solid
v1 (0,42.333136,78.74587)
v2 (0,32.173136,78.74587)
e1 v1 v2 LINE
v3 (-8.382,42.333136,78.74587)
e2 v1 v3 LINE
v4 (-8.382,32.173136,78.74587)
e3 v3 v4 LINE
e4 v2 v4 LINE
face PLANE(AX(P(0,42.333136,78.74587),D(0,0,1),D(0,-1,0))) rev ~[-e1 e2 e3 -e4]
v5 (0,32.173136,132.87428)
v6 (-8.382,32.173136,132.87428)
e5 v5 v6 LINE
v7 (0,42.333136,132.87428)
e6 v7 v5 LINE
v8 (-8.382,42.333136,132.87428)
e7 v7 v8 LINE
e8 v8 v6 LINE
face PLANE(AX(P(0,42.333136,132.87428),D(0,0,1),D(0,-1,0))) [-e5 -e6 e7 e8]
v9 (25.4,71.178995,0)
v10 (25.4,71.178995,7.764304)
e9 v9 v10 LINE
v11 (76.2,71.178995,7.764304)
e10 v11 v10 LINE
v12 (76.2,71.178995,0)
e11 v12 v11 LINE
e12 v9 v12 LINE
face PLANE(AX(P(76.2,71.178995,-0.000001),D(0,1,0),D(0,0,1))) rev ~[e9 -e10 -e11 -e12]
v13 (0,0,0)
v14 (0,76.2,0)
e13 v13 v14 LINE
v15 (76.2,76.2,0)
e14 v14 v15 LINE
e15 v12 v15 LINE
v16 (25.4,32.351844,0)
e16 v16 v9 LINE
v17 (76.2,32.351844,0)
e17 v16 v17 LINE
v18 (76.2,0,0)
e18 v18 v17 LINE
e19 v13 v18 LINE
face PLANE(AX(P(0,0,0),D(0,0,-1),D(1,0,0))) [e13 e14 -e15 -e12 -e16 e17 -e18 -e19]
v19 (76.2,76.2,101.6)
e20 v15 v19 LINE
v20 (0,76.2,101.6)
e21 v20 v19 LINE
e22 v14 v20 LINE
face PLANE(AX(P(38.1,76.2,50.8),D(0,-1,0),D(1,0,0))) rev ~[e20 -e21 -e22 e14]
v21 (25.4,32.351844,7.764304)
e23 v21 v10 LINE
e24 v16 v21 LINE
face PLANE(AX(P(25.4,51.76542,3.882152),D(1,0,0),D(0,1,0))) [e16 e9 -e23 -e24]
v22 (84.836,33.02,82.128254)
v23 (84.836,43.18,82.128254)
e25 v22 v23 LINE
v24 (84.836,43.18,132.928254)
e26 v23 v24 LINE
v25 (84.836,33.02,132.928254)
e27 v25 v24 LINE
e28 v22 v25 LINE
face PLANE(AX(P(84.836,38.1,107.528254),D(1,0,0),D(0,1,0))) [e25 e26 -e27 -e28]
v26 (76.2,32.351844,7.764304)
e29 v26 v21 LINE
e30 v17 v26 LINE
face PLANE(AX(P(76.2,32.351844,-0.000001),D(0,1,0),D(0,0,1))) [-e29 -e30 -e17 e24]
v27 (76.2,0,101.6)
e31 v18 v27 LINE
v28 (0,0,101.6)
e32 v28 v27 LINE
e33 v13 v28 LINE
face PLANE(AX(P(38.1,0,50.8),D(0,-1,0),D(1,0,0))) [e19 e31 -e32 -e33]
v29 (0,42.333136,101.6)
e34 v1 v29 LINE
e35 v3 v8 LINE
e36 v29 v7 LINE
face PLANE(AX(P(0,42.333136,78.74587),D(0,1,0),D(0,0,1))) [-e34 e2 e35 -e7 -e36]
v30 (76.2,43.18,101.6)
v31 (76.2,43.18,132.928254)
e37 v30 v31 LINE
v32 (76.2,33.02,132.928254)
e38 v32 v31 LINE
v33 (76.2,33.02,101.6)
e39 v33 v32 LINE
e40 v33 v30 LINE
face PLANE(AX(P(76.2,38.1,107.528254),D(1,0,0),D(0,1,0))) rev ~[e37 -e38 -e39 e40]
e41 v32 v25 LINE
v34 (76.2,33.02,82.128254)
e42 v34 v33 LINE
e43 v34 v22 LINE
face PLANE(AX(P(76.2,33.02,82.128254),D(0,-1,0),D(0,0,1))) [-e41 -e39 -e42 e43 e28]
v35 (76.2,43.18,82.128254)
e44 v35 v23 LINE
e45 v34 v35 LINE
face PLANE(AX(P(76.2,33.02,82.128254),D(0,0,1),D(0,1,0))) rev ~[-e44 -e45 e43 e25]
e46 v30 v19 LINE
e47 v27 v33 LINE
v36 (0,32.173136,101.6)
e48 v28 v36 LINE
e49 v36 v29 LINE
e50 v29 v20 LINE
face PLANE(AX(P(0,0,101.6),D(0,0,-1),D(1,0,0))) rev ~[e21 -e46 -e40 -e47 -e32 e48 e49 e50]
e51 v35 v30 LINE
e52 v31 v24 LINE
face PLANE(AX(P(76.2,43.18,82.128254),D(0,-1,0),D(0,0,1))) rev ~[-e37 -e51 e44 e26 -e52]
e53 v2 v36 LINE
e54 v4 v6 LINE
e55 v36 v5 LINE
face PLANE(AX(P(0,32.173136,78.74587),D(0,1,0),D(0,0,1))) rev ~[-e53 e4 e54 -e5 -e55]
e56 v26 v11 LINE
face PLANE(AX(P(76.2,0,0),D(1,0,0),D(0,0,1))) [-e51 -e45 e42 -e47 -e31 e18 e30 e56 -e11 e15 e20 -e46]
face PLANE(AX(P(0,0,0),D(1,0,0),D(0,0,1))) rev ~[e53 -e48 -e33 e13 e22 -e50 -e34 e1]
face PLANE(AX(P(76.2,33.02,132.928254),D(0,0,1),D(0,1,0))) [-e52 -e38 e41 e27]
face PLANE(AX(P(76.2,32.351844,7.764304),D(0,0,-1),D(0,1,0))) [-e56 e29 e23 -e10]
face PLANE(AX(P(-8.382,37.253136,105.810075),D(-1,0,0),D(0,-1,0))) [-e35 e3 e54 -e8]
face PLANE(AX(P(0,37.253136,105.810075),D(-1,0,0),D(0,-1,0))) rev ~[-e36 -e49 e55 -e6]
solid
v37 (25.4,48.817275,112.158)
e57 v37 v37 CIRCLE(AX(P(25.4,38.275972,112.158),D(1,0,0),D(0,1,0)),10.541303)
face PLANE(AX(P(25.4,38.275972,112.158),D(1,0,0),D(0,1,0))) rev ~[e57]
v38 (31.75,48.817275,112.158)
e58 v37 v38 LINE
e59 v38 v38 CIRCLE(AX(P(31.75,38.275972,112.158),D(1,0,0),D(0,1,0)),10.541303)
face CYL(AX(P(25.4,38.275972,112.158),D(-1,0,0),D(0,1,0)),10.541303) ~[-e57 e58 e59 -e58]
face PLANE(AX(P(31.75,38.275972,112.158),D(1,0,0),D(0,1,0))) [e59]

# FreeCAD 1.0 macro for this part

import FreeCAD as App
import Part
import Sketcher

V = App.Vector
Q = App.Units.Quantity

doc = App.newDocument("Part")
body = doc.addObject("PartDesign::Body", "Body")

sketch1 = doc.addObject("Sketcher::SketchObject", "Sketch")
body.addObject(sketch1)
sketch1.AttachmentSupport = (doc.XZ_Plane, [""])
sketch1.MapMode = "FlatFace"
sketch1.addGeometry(Part.LineSegment(V(0, 101.6, 0), V(0, 0, 0)), False)
sketch1.addGeometry(Part.LineSegment(V(0, 0, 0), V(76.2, 0, 0)), False)
sketch1.addGeometry(Part.LineSegment(V(76.2, 0, 0), V(76.2, 101.6, 0)), False)
sketch1.addGeometry(Part.LineSegment(V(76.2, 101.6, 0), V(0, 101.6, 0)), False)
sketch1.addConstraint(Sketcher.Constraint("Coincident", 0, 2, 1, 1))
sketch1.addConstraint(Sketcher.Constraint("Coincident", 1, 2, 2, 1))
sketch1.addConstraint(Sketcher.Constraint("Coincident", 2, 2, 3, 1))
sketch1.addConstraint(Sketcher.Constraint("Coincident", 3, 2, 0, 1))
sketch1.addConstraint(Sketcher.Constraint("Vertical", 0))
sketch1.addConstraint(Sketcher.Constraint("Horizontal", 1))
sketch1.addConstraint(Sketcher.Constraint("Vertical", 2))
sketch1.addConstraint(Sketcher.Constraint("Horizontal", 3))
sketch1.addConstraint(Sketcher.Constraint("Coincident", 0, 2, -1, 1))
sketch1.addConstraint(Sketcher.Constraint("DistanceX", 1, 1, 1, 2, Q("3 in")))
sketch1.addConstraint(Sketcher.Constraint("DistanceY", 0, 2, 0, 1, Q("4 in")))
pad1 = doc.addObject("PartDesign::Pad", "Pad")
body.addObject(pad1)
pad1.Profile = sketch1
pad1.Length = Q("3 in")
pad1.Reversed = True

sketch2 = doc.addObject("Sketcher::SketchObject", "Sketch001")
body.addObject(sketch2)
sketch2.AttachmentSupport = (doc.XZ_Plane, [""])
sketch2.MapMode = "FlatFace"
sketch2.addGeometry(Part.LineSegment(V(0, 101.6, 0), V(0, 0, 0)), False)
sketch2.addGeometry(Part.LineSegment(V(0, 0, 0), V(76.2, 0, 0)), False)
sketch2.addGeometry(Part.LineSegment(V(76.2, 0, 0), V(76.2, 101.6, 0)), False)
sketch2.addGeometry(Part.LineSegment(V(76.2, 101.6, 0), V(0, 101.6, 0)), False)
sketch2.addConstraint(Sketcher.Constraint("Coincident", 0, 2, 1, 1))
sketch2.addConstraint(Sketcher.Constraint("Coincident", 1, 2, 2, 1))
sketch2.addConstraint(Sketcher.Constraint("Coincident", 2, 2, 3, 1))
sketch2.addConstraint(Sketcher.Constraint("Coincident", 3, 2, 0, 1))
sketch2.addConstraint(Sketcher.Constraint("Vertical", 0))
sketch2.addConstraint(Sketcher.Constraint("Horizontal", 1))
sketch2.addConstraint(Sketcher.Constraint("Vertical", 2))
sketch2.addConstraint(Sketcher.Constraint("Horizontal", 3))
sketch2.addConstraint(Sketcher.Constraint("Coincident", 0, 2, -1, 1))
sketch2.addConstraint(Sketcher.Constraint("DistanceX", 1, 1, 1, 2, Q("3 in")))
sketch2.addConstraint(Sketcher.Constraint("DistanceY", 0, 2, 0, 1, Q("4 in")))
pad2 = doc.addObject("PartDesign::Pad", "Pad001")
body.addObject(pad2)
pad2.Profile = sketch2
pad2.Length = Q("3 in")
pad2.Reversed = True

sketch3 = doc.addObject("Sketcher::SketchObject", "Sketch002")
body.addObject(sketch3)
sketch3.AttachmentSupport = (doc.YZ_Plane, [""])
sketch3.MapMode = "FlatFace"
sketch3.AttachmentOffset = App.Placement(V(0, 0, 3 * 25.4), App.Rotation())
sketch3.addGeometry(Part.LineSegment(V(33.02, 132.928254, 0), V(33.02, 82.128254, 0)), False)
sketch3.addGeometry(Part.LineSegment(V(33.02, 82.128254, 0), V(43.18, 82.128254, 0)), False)
sketch3.addGeometry(Part.LineSegment(V(43.18, 82.128254, 0), V(43.18, 132.928254, 0)), False)
sketch3.addGeometry(Part.LineSegment(V(43.18, 132.928254, 0), V(33.02, 132.928254, 0)), False)
sketch3.addConstraint(Sketcher.Constraint("Coincident", 0, 2, 1, 1))
sketch3.addConstraint(Sketcher.Constraint("Coincident", 1, 2, 2, 1))
sketch3.addConstraint(Sketcher.Constraint("Coincident", 2, 2, 3, 1))
sketch3.addConstraint(Sketcher.Constraint("Coincident", 3, 2, 0, 1))
sketch3.addConstraint(Sketcher.Constraint("Vertical", 0))
sketch3.addConstraint(Sketcher.Constraint("Horizontal", 1))
sketch3.addConstraint(Sketcher.Constraint("Vertical", 2))
sketch3.addConstraint(Sketcher.Constraint("Horizontal", 3))
sketch3.addConstraint(Sketcher.Constraint("DistanceY", 0, 2, 0, 1, Q("2 in")))
sketch3.addConstraint(Sketcher.Constraint("DistanceX", 1, 1, 1, 2, Q("0.4 in")))
sketch3.addConstraint(Sketcher.Constraint("DistanceX", -1, 1, 0, 2, Q("1.3 in")))
sketch3.addConstraint(Sketcher.Constraint("DistanceY", -1, 1, 0, 2, Q("82.128254 mm")))
pad3 = doc.addObject("PartDesign::Pad", "Pad002")
body.addObject(pad3)
pad3.Profile = sketch3
pad3.Length = Q("0.34 in")

sketch4 = doc.addObject("Sketcher::SketchObject", "Sketch003")
body.addObject(sketch4)
sketch4.AttachmentSupport = (doc.YZ_Plane, [""])
sketch4.MapMode = "FlatFace"
sketch4.addGeometry(Part.LineSegment(V(42.333136, 132.87428, 0), V(42.333136, 78.74587, 0)), False)
sketch4.addGeometry(Part.LineSegment(V(42.333136, 78.74587, 0), V(32.173136, 78.74587, 0)), False)
sketch4.addGeometry(Part.LineSegment(V(32.173136, 78.74587, 0), V(32.173136, 132.87428, 0)), False)
sketch4.addGeometry(Part.LineSegment(V(32.173136, 132.87428, 0), V(42.333136, 132.87428, 0)), False)
sketch4.addConstraint(Sketcher.Constraint("Coincident", 0, 2, 1, 1))
sketch4.addConstraint(Sketcher.Constraint("Coincident", 1, 2, 2, 1))
sketch4.addConstraint(Sketcher.Constraint("Coincident", 2, 2, 3, 1))
sketch4.addConstraint(Sketcher.Constraint("Coincident", 3, 2, 0, 1))
sketch4.addConstraint(Sketcher.Constraint("Vertical", 0))
sketch4.addConstraint(Sketcher.Constraint("Horizontal", 1))
sketch4.addConstraint(Sketcher.Constraint("Vertical", 2))
sketch4.addConstraint(Sketcher.Constraint("Horizontal", 3))
sketch4.addConstraint(Sketcher.Constraint("DistanceX", 1, 2, 1, 1, Q("0.4 in")))
sketch4.addConstraint(Sketcher.Constraint("DistanceY", 0, 2, 0, 1, Q("54.12841 mm")))
sketch4.addConstraint(Sketcher.Constraint("DistanceY", -1, 1, 0, 2, Q("78.74587 mm")))
sketch4.addConstraint(Sketcher.Constraint("DistanceX", -1, 1, 0, 2, Q("42.333136 mm")))
pad4 = doc.addObject("PartDesign::Pad", "Pad003")
body.addObject(pad4)
pad4.Profile = sketch4
pad4.Length = Q("0.33 in")
pad4.Reversed = True

sketch5 = doc.addObject("Sketcher::SketchObject", "Sketch004")
body.addObject(sketch5)
sketch5.AttachmentSupport = (doc.YZ_Plane, [""])
sketch5.MapMode = "FlatFace"
sketch5.AttachmentOffset = App.Placement(V(0, 0, 3 * 25.4), App.Rotation())
sketch5.addGeometry(Part.LineSegment(V(32.351844, 7.764304, 0), V(32.351844, 0, 0)), False)
sketch5.addGeometry(Part.LineSegment(V(32.351844, 0, 0), V(71.178995, 0, 0)), False)
sketch5.addGeometry(Part.LineSegment(V(71.178995, 0, 0), V(71.178995, 7.764304, 0)), False)
sketch5.addGeometry(Part.LineSegment(V(71.178995, 7.764304, 0), V(32.351844, 7.764304, 0)), False)
sketch5.addConstraint(Sketcher.Constraint("Coincident", 0, 2, 1, 1))
sketch5.addConstraint(Sketcher.Constraint("Coincident", 1, 2, 2, 1))
sketch5.addConstraint(Sketcher.Constraint("Coincident", 2, 2, 3, 1))
sketch5.addConstraint(Sketcher.Constraint("Coincident", 3, 2, 0, 1))
sketch5.addConstraint(Sketcher.Constraint("Vertical", 0))
sketch5.addConstraint(Sketcher.Constraint("Horizontal", 1))
sketch5.addConstraint(Sketcher.Constraint("Vertical", 2))
sketch5.addConstraint(Sketcher.Constraint("Horizontal", 3))
sketch5.addConstraint(Sketcher.Constraint("PointOnObject", 0, 2, -1))
sketch5.addConstraint(Sketcher.Constraint("DistanceX", 1, 1, 1, 2, Q("38.827151 mm")))
sketch5.addConstraint(Sketcher.Constraint("DistanceY", 0, 2, 0, 1, Q("7.764305 mm")))
sketch5.addConstraint(Sketcher.Constraint("DistanceX", -1, 1, 0, 2, Q("32.351844 mm")))
pocket1 = doc.addObject("PartDesign::Pocket", "Pocket")
body.addObject(pocket1)
pocket1.Profile = sketch5
pocket1.Length = Q("2 in")
body2 = doc.addObject("PartDesign::Body", "Body001")

sketch6 = doc.addObject("Sketcher::SketchObject", "Sketch005")
body2.addObject(sketch6)
sketch6.AttachmentSupport = (doc.getObject("YZ_Plane001"), [""])
sketch6.MapMode = "FlatFace"
sketch6.AttachmentOffset = App.Placement(V(0, 0, 1 * 25.4), App.Rotation())
sketch6.addGeometry(Part.Circle(V(38.275972, 112.158, 0), V(0, 0, 1), 10.541303), False)
sketch6.addConstraint(Sketcher.Constraint("Diameter", 0, Q("21.082606 mm")))
sketch6.addConstraint(Sketcher.Constraint("DistanceY", -1, 1, 0, 3, Q("112.158 mm")))
sketch6.addConstraint(Sketcher.Constraint("DistanceX", -1, 1, 0, 3, Q("38.275972 mm")))
pad5 = doc.addObject("PartDesign::Pad", "Pad004")
body2.addObject(pad5)
pad5.Profile = sketch6
pad5.Length = Q("0.25 in")

doc.recompute()
